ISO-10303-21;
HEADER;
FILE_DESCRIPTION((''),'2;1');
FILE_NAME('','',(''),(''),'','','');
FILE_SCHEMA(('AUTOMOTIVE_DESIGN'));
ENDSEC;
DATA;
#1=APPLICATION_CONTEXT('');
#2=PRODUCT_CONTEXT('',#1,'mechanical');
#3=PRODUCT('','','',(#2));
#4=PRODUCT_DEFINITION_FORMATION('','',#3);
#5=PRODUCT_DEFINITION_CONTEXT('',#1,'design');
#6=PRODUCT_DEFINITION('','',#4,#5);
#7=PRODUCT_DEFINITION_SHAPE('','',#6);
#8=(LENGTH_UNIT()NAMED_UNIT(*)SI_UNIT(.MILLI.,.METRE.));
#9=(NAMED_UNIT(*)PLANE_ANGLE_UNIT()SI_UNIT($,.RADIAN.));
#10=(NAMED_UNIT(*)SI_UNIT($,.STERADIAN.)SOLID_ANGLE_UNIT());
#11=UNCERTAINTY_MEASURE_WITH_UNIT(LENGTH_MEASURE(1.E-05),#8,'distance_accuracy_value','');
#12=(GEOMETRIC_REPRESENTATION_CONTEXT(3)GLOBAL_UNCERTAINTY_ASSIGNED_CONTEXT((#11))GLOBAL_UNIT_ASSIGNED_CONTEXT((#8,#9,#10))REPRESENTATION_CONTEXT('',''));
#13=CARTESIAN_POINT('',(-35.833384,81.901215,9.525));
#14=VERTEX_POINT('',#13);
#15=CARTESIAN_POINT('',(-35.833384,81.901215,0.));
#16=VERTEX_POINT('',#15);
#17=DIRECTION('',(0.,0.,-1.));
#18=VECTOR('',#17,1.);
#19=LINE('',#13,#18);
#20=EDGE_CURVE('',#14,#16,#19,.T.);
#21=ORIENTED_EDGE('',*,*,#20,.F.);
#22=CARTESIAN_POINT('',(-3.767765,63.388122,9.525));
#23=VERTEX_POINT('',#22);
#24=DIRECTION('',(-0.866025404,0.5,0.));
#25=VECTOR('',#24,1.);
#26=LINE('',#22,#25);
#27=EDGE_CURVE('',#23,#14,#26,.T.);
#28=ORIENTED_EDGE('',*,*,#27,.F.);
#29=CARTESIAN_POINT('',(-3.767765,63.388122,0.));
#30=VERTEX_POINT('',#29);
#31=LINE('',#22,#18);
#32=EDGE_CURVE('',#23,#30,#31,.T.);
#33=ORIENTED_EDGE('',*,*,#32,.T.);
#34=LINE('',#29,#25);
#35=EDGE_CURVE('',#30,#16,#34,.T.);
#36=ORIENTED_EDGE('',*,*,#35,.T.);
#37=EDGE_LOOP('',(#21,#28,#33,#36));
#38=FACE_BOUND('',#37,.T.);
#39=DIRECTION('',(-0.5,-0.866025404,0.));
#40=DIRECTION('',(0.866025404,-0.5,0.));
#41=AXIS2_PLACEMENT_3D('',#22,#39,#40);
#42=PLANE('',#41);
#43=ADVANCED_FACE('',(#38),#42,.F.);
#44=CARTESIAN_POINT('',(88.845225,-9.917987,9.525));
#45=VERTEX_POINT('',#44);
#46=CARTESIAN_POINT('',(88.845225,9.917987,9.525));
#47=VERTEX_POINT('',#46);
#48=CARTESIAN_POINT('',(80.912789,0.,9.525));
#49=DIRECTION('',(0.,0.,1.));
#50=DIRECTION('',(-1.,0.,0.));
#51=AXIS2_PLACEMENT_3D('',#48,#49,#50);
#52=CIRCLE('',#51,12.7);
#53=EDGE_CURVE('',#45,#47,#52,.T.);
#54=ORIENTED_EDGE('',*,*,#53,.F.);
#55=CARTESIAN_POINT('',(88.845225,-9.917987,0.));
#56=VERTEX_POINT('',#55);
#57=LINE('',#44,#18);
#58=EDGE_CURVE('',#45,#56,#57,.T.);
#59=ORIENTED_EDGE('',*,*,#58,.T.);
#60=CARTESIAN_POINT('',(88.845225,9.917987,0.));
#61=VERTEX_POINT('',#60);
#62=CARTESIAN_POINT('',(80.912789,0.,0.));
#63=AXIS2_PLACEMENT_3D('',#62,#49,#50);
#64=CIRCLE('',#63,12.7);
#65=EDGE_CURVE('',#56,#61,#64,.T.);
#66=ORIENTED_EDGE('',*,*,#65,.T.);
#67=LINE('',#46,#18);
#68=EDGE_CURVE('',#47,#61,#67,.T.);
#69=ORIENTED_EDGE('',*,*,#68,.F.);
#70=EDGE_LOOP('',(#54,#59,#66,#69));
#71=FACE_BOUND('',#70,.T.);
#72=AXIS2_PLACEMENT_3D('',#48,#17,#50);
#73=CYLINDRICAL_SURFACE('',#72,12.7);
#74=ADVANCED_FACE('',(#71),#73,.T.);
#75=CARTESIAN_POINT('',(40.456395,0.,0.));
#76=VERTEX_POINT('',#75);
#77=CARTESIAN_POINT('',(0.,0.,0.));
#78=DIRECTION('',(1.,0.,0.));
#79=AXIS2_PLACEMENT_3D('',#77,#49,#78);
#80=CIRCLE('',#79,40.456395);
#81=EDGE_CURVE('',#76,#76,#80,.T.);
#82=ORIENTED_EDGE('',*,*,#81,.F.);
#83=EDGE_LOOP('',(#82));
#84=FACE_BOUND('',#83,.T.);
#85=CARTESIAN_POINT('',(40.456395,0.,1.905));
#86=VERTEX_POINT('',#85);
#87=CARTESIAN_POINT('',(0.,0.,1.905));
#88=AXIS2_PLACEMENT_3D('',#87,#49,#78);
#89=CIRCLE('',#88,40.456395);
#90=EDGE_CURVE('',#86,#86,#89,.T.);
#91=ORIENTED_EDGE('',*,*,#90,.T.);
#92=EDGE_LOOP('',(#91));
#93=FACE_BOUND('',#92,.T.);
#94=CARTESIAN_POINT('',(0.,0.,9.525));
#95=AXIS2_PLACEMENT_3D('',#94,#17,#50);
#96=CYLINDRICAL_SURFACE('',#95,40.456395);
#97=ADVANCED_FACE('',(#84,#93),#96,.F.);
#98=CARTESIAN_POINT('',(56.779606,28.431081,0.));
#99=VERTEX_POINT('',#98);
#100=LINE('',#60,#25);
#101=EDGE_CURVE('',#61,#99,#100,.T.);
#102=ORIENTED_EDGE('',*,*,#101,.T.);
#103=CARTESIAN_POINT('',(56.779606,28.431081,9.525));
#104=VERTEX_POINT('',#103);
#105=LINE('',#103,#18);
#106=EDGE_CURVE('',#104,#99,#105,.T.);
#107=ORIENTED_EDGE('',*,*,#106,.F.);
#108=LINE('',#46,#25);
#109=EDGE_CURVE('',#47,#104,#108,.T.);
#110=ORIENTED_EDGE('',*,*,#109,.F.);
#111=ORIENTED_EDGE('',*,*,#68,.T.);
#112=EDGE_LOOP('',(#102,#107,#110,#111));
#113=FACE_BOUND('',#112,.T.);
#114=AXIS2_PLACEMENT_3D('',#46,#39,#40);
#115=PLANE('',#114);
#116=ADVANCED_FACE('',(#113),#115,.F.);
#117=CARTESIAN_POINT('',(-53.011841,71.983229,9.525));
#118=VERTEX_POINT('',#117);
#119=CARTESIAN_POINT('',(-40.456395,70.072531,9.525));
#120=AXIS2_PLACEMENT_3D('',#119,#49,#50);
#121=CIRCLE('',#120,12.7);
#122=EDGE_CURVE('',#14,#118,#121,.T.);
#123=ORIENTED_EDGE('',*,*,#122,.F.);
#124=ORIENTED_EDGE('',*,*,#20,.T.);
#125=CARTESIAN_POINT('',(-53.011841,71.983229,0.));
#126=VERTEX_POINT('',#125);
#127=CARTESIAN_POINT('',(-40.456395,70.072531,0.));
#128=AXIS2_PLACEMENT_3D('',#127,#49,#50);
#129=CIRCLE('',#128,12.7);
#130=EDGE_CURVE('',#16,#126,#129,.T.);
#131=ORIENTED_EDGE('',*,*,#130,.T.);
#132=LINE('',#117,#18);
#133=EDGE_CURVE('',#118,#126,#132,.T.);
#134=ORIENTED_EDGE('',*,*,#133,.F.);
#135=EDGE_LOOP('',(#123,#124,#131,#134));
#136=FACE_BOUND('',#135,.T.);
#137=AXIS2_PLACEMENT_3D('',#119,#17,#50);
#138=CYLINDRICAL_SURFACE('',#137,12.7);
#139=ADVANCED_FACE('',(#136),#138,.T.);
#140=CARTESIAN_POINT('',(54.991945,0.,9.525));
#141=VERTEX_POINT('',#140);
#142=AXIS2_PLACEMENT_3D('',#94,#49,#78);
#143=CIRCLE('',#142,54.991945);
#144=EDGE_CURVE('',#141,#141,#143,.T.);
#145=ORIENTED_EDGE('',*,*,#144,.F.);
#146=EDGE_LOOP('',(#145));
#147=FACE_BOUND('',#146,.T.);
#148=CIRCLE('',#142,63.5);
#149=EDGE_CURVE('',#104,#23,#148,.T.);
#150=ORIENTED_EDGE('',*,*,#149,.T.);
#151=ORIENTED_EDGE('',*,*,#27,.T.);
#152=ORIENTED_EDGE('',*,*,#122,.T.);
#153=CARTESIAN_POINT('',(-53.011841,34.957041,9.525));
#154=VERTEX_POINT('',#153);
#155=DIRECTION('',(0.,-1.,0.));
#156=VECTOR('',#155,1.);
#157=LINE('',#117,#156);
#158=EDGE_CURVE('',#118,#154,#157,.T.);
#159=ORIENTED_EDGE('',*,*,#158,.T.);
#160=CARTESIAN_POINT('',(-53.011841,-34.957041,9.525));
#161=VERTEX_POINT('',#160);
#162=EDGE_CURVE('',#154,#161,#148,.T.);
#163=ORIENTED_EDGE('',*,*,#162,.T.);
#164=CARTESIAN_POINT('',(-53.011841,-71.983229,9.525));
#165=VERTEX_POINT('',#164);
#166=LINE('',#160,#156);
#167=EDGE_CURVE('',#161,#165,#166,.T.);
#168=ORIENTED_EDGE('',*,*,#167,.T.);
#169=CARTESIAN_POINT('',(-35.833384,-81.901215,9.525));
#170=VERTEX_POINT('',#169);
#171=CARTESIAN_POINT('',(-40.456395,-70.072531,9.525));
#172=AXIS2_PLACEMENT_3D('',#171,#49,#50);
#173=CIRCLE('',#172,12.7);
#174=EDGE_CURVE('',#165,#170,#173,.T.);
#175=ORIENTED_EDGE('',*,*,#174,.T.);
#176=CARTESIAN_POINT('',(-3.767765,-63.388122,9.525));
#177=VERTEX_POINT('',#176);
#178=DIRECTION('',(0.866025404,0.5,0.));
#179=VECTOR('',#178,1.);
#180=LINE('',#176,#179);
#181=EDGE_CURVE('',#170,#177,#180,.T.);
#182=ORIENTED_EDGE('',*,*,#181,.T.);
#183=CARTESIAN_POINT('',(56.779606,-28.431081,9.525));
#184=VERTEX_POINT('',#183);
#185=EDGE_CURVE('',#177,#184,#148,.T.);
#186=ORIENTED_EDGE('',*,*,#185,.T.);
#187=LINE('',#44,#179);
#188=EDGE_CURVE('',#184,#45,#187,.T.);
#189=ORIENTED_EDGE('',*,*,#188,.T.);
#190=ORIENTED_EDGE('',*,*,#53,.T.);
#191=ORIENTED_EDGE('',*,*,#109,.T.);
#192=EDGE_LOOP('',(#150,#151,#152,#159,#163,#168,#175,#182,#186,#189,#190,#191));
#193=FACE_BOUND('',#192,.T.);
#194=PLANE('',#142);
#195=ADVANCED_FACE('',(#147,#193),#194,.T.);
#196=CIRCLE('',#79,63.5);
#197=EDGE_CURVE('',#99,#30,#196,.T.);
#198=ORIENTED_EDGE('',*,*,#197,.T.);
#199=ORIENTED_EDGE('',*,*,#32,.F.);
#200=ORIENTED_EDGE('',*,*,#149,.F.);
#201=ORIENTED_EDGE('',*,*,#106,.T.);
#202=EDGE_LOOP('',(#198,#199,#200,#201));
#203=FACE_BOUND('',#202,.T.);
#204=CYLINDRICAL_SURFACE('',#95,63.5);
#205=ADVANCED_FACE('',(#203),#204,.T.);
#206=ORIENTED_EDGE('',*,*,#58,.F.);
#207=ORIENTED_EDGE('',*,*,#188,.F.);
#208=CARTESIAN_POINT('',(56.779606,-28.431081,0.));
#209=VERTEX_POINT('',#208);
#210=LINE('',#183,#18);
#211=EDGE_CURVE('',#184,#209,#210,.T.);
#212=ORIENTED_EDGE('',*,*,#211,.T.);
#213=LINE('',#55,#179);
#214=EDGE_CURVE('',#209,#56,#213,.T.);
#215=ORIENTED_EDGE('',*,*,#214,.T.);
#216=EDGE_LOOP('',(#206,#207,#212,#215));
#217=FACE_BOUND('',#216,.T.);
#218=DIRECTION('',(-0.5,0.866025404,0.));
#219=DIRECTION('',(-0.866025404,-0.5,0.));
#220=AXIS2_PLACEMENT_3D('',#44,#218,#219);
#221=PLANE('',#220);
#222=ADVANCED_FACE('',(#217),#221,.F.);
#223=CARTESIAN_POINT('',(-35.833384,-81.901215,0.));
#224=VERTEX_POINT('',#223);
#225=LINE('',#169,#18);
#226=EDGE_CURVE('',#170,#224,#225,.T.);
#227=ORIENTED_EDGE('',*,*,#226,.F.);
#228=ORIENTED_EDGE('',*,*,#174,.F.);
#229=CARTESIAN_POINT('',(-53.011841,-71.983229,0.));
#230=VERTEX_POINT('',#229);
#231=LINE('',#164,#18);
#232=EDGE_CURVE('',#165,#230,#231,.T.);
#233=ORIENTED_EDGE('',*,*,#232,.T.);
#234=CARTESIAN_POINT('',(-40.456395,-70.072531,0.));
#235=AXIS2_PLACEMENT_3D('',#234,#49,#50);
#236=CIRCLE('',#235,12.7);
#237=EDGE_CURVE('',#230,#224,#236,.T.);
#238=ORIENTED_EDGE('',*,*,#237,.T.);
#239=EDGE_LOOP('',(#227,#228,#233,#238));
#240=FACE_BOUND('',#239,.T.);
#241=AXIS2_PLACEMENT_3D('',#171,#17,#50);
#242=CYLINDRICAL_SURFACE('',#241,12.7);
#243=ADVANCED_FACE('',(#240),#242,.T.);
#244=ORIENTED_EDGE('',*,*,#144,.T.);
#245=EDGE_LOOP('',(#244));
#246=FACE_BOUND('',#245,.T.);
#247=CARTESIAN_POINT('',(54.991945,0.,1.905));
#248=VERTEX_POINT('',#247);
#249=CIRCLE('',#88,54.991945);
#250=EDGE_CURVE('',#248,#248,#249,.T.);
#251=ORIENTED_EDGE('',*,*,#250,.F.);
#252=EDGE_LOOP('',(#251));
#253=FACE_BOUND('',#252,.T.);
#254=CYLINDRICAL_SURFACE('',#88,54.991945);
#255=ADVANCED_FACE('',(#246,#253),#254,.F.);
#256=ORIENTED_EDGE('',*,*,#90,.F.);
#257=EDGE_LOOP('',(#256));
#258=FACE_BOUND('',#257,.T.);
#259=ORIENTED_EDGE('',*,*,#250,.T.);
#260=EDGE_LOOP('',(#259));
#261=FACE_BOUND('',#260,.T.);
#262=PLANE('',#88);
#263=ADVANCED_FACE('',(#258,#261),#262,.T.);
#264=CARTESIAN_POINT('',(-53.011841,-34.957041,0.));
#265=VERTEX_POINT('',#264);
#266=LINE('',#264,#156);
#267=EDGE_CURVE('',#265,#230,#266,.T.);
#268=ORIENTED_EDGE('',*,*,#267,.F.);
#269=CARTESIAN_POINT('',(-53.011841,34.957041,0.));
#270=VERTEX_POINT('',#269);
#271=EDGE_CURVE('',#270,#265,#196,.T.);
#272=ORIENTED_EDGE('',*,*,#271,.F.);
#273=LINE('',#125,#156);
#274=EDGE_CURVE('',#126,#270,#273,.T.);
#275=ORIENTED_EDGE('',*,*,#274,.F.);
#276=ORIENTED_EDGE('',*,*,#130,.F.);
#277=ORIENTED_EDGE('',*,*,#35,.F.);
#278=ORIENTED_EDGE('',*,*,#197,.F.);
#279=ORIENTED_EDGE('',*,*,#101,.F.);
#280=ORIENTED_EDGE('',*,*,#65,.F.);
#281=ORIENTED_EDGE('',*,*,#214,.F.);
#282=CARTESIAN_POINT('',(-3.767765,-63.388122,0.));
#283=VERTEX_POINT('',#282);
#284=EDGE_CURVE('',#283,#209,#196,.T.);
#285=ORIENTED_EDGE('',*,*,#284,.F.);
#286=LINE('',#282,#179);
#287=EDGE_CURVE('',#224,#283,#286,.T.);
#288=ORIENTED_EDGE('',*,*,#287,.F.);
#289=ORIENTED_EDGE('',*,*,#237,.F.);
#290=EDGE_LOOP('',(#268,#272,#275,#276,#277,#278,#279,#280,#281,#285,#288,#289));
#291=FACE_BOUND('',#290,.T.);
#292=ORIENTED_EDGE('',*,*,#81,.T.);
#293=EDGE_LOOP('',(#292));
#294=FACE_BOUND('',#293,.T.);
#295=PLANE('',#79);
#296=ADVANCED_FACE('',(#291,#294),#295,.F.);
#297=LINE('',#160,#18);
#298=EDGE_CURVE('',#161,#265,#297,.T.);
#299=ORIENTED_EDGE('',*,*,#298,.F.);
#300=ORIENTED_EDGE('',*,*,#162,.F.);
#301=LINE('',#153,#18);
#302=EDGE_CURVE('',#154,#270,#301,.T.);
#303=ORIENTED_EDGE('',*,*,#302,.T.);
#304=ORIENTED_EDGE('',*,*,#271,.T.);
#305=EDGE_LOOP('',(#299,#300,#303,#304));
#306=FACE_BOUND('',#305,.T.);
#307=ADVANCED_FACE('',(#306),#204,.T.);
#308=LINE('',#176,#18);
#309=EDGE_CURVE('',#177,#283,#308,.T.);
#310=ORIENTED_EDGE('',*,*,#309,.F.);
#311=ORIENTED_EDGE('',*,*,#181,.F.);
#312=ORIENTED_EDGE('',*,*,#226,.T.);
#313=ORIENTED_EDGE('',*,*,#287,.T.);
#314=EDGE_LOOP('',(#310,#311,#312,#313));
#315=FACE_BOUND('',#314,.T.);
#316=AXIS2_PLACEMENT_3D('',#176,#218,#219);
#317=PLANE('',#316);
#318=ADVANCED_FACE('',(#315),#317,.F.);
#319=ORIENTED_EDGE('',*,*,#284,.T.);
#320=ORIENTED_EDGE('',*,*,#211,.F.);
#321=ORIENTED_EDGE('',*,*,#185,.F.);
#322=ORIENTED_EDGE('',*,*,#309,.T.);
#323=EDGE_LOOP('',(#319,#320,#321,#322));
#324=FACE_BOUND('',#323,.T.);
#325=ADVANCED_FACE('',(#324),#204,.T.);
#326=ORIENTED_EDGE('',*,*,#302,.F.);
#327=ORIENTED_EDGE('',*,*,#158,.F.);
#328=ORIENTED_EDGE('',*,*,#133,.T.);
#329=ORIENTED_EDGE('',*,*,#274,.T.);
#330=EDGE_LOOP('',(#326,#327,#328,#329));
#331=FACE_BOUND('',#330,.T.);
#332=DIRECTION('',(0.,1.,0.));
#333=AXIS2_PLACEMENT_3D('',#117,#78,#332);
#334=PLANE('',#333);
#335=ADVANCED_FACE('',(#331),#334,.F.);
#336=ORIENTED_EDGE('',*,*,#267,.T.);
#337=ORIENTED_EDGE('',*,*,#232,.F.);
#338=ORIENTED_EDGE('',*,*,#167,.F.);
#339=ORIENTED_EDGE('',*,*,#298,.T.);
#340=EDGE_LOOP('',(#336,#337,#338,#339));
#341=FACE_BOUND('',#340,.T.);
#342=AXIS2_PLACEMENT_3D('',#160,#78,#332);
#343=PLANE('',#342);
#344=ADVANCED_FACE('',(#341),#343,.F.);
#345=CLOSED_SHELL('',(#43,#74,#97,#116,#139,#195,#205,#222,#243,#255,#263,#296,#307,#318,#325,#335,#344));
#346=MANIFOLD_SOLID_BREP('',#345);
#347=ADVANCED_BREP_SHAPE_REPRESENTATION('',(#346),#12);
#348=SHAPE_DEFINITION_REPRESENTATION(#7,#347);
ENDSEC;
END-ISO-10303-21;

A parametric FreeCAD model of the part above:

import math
import FreeCAD as App
import Part
import Sketcher
Q = App.Units.Quantity

doc = App.newDocument("Part")
params = doc.addObject("Spreadsheet::Sheet", "Params")
for row, (alias, value) in enumerate([
    ("sketch1_radius", "0.5 in"),
    ("sketch1_radius2", "2.5 in"),
    ("sketch1_radius3", "0.5 in"),
    ("sketch1_radius4", "2.5 in"),
    ("sketch1_radius5", "0.5 in"),
    ("pad1_length", "0.375 in"),
    ("pocket1_length", "0.3 in"),
], start=1):
    params.set(f"A{row}", alias)
    params.set(f"B{row}", "=" + value)
    params.setAlias(f"B{row}", alias)

body = doc.addObject("PartDesign::Body", "Body")

sketch1 = body.newObject("Sketcher::SketchObject", "Sketch")
sketch1.AttachmentSupport = (doc.getObject("XY_Plane"), [""])
sketch1.MapMode = "FlatFace"
sketch1.addGeometry([
    Part.LineSegment(App.Vector(56.779606, -28.431081, 0), App.Vector(88.845225, -9.917987, 0)),
    Part.ArcOfCircle(Part.Circle(App.Vector(80.912789, 0, 0), App.Vector(0, 0, 1), 12.7), math.radians(-51.347075), math.radians(51.347075)),
    Part.LineSegment(App.Vector(88.845225, 9.917987, 0), App.Vector(56.779606, 28.431081, 0)),
    Part.ArcOfCircle(Part.Circle(App.Vector(0, 0, 0), App.Vector(0, 0, 1), 63.5), math.radians(26.598364), math.radians(93.401636)),
    Part.LineSegment(App.Vector(-3.767765, 63.388122, 0), App.Vector(-35.833384, 81.901215, 0)),
    Part.ArcOfCircle(Part.Circle(App.Vector(-40.456395, 70.072531, 0), App.Vector(0, 0, 1), 12.7), math.radians(68.652925), math.radians(171.347075)),
    Part.LineSegment(App.Vector(-53.011841, 71.983229, 0), App.Vector(-53.011841, 34.957041, 0)),
    Part.ArcOfCircle(Part.Circle(App.Vector(0, 0, 0), App.Vector(0, 0, 1), 63.5), math.radians(146.598364), math.radians(213.401636)),
    Part.LineSegment(App.Vector(-53.011841, -34.957041, 0), App.Vector(-53.011841, -71.983229, 0)),
    Part.ArcOfCircle(Part.Circle(App.Vector(-40.456395, -70.072531, 0), App.Vector(0, 0, 1), 12.7), math.radians(-171.347075), math.radians(-68.652925)),
    Part.LineSegment(App.Vector(-35.833384, -81.901215, 0), App.Vector(-3.767765, -63.388122, 0)),
    Part.ArcOfCircle(Part.Circle(App.Vector(0, 0, 0), App.Vector(0, 0, 1), 63.5), math.radians(-93.401636), math.radians(-26.598364)),
    Part.Circle(App.Vector(0, 0, 0), App.Vector(0, 0, 1), 40.456395),
], False)
sketch1.addConstraint([
    Sketcher.Constraint("Coincident", 0, 2, 1, 1),
    Sketcher.Constraint("Coincident", 1, 2, 2, 1),
    Sketcher.Constraint("Coincident", 2, 2, 3, 1),
    Sketcher.Constraint("Coincident", 3, 2, 4, 1),
    Sketcher.Constraint("Coincident", 4, 2, 5, 1),
    Sketcher.Constraint("Coincident", 5, 2, 6, 1),
    Sketcher.Constraint("Coincident", 6, 2, 7, 1),
    Sketcher.Constraint("Coincident", 7, 2, 8, 1),
    Sketcher.Constraint("Coincident", 8, 2, 9, 1),
    Sketcher.Constraint("Coincident", 9, 2, 10, 1),
    Sketcher.Constraint("Coincident", 10, 2, 11, 1),
    Sketcher.Constraint("Coincident", 11, 2, 0, 1),
    Sketcher.Constraint("Vertical", 6),
    Sketcher.Constraint("Vertical", 8),
    Sketcher.Constraint("Coincident", 3, 3, -1, 1),
    Sketcher.Constraint("Coincident", 7, 3, -1, 1),
    Sketcher.Constraint("Coincident", 11, 3, -1, 1),
    Sketcher.Constraint("Coincident", 12, 3, -1, 1),
    Sketcher.Constraint("PointOnObject", 1, 3, -1),
    Sketcher.Constraint("Radius", 1, Q("0.5 in")),
    Sketcher.Constraint("Radius", 3, Q("2.5 in")),
    Sketcher.Constraint("Radius", 5, Q("0.5 in")),
    Sketcher.Constraint("Radius", 7, Q("2.5 in")),
    Sketcher.Constraint("Radius", 9, Q("0.5 in")),
    Sketcher.Constraint("Radius", 11, Q("2.5 in")),
    Sketcher.Constraint("Diameter", 12, 80.912789),
    Sketcher.Constraint("DistanceY", 6, 2, 6, 1, 37.026188),
    Sketcher.Constraint("DistanceY", 8, 2, 8, 1, 37.026188),
    Sketcher.Constraint("DistanceX", -1, 1, 1, 3, 80.912789),
    Sketcher.Constraint("DistanceY", -1, 1, 5, 3, 70.072531),
    Sketcher.Constraint("DistanceY", 9, 3, -1, 1, 70.072531),
    Sketcher.Constraint("DistanceY", -1, 1, 2, 2, 28.431081),
    Sketcher.Constraint("DistanceY", -1, 1, 3, 2, 63.388122),
    Sketcher.Constraint("DistanceX", 5, 2, -1, 1, 53.011841),
    Sketcher.Constraint("DistanceX", 7, 2, -1, 1, 53.011841),
    Sketcher.Constraint("DistanceY", 10, 2, -1, 1, 63.388122),
    Sketcher.Constraint("DistanceY", 11, 2, -1, 1, 28.431081),
    Sketcher.Constraint("DistanceX", 2, 2, 1, 2, 32.065619),
    Sketcher.Constraint("DistanceX", 2, 2, 0, 2, 32.065619),
    Sketcher.Constraint("DistanceX", 5, 3, 4, 2, 4.623011),
    Sketcher.Constraint("DistanceX", 9, 3, 9, 2, 4.623011),
])
sketch1.setExpression("Constraints[19]", "Params.sketch1_radius")
sketch1.setExpression("Constraints[20]", "Params.sketch1_radius2")
sketch1.setExpression("Constraints[21]", "Params.sketch1_radius3")
sketch1.setExpression("Constraints[22]", "Params.sketch1_radius4")
sketch1.setExpression("Constraints[23]", "Params.sketch1_radius5")
pad1 = body.newObject("PartDesign::Pad", "Pad")
pad1.Profile = sketch1
pad1.setExpression("Length", "Params.pad1_length")

sketch2 = body.newObject("Sketcher::SketchObject", "Sketch001")
sketch2.AttachmentSupport = (doc.getObject("XY_Plane"), [""])
sketch2.MapMode = "FlatFace"
sketch2.AttachmentOffset = App.Placement(App.Vector(0, 0, 0.375 * 25.4), App.Rotation())
sketch2.addGeometry(Part.Circle(App.Vector(0, 0, 0), App.Vector(0, 0, 1), 55), False)
sketch2.addConstraint([
    Sketcher.Constraint("Coincident", 0, 3, -1, 1),
    Sketcher.Constraint("Diameter", 0, 109.983889),
])
pocket1 = body.newObject("PartDesign::Pocket", "Pocket")
pocket1.Profile = sketch2
pocket1.setExpression("Length", "Params.pocket1_length")

doc.recompute()
